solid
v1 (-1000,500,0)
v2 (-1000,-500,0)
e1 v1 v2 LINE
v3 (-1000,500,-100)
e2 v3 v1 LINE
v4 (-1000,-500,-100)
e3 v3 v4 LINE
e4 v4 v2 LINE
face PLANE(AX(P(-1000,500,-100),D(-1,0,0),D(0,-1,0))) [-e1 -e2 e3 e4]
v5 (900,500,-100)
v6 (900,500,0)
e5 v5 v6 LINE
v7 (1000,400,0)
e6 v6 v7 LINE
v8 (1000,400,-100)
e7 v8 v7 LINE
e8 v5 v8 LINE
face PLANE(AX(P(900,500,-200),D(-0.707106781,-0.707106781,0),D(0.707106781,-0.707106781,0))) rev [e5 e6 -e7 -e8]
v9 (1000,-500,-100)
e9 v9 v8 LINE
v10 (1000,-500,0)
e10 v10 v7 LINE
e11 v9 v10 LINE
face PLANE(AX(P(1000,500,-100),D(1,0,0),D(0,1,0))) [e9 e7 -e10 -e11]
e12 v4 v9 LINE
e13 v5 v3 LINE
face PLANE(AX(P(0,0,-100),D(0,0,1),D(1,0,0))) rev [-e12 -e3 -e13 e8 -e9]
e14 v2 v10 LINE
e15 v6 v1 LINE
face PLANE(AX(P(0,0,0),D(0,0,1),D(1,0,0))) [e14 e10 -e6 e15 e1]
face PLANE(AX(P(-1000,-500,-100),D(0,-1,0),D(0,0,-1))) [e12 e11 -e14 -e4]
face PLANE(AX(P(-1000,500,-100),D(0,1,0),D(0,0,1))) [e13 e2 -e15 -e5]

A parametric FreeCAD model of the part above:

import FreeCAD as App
import Part
import Sketcher
Q = App.Units.Quantity

doc = App.newDocument("Part")
body = doc.addObject("PartDesign::Body", "Body")

# Sketch on XY plane
sketch1 = doc.addObject("Sketcher::SketchObject", "Sketch")
body.addObject(sketch1)
sketch1.AttachmentSupport = (doc.XY_Plane, [""])
sketch1.MapMode = "FlatFace"
sketch1.addGeometry(Part.LineSegment(App.Vector(-1000, 500, 0), App.Vector(-1000, -500, 0)), False)
sketch1.addGeometry(Part.LineSegment(App.Vector(-1000, -500, 0), App.Vector(1000, -500, 0)), False)
sketch1.addGeometry(Part.LineSegment(App.Vector(1000, -500, 0), App.Vector(1000, 500, 0)), False)
sketch1.addGeometry(Part.LineSegment(App.Vector(1000, 500, 0), App.Vector(-1000, 500, 0)), False)
sketch1.addConstraint(Sketcher.Constraint("Coincident", 0, 2, 1, 1))
sketch1.addConstraint(Sketcher.Constraint("Coincident", 1, 2, 2, 1))
sketch1.addConstraint(Sketcher.Constraint("Coincident", 2, 2, 3, 1))
sketch1.addConstraint(Sketcher.Constraint("Coincident", 3, 2, 0, 1))
sketch1.addConstraint(Sketcher.Constraint("Vertical", 0))
sketch1.addConstraint(Sketcher.Constraint("Horizontal", 1))
sketch1.addConstraint(Sketcher.Constraint("Vertical", 2))
sketch1.addConstraint(Sketcher.Constraint("Horizontal", 3))
sketch1.addConstraint(Sketcher.Constraint("Symmetric", 0, 2, 2, 2, -1, 1))
sketch1.addConstraint(Sketcher.Constraint("DistanceX", 1, 1, 1, 2, Q("2000 mm")))
sketch1.addConstraint(Sketcher.Constraint("DistanceY", 0, 2, 0, 1, Q("1000 mm")))
pad1 = doc.addObject("PartDesign::Pad", "Pad")
body.addObject(pad1)
pad1.Profile = sketch1
pad1.Length = 100
pad1.Reversed = True

# Sketch on XY plane
sketch2 = doc.addObject("Sketcher::SketchObject", "Sketch001")
body.addObject(sketch2)
sketch2.AttachmentSupport = (doc.XY_Plane, [""])
sketch2.MapMode = "FlatFace"
sketch2.addGeometry(Part.LineSegment(App.Vector(900, 500, 0), App.Vector(1000, 400, 0)), False)
sketch2.addGeometry(Part.LineSegment(App.Vector(1000, 400, 0), App.Vector(1000, 500, 0)), False)
sketch2.addGeometry(Part.LineSegment(App.Vector(1000, 500, 0), App.Vector(900, 500, 0)), False)
sketch2.addConstraint(Sketcher.Constraint("Coincident", 0, 2, 1, 1))
sketch2.addConstraint(Sketcher.Constraint("Coincident", 1, 2, 2, 1))
sketch2.addConstraint(Sketcher.Constraint("Coincident", 2, 2, 0, 1))
sketch2.addConstraint(Sketcher.Constraint("Vertical", 1))
sketch2.addConstraint(Sketcher.Constraint("Horizontal", 2))
sketch2.addConstraint(Sketcher.Constraint("Equal", 2, 1))
sketch2.addConstraint(Sketcher.Constraint("DistanceX", 2, 2, 2, 1, Q("100 mm")))
sketch2.addConstraint(Sketcher.Constraint("DistanceX", -1, 1, 0, 2, Q("1000 mm")))
sketch2.addConstraint(Sketcher.Constraint("DistanceY", -1, 1, 0, 2, Q("400 mm")))
pocket1 = doc.addObject("PartDesign::Pocket", "Pocket")
body.addObject(pocket1)
pocket1.Profile = sketch2
pocket1.Length = 200

doc.recompute()
